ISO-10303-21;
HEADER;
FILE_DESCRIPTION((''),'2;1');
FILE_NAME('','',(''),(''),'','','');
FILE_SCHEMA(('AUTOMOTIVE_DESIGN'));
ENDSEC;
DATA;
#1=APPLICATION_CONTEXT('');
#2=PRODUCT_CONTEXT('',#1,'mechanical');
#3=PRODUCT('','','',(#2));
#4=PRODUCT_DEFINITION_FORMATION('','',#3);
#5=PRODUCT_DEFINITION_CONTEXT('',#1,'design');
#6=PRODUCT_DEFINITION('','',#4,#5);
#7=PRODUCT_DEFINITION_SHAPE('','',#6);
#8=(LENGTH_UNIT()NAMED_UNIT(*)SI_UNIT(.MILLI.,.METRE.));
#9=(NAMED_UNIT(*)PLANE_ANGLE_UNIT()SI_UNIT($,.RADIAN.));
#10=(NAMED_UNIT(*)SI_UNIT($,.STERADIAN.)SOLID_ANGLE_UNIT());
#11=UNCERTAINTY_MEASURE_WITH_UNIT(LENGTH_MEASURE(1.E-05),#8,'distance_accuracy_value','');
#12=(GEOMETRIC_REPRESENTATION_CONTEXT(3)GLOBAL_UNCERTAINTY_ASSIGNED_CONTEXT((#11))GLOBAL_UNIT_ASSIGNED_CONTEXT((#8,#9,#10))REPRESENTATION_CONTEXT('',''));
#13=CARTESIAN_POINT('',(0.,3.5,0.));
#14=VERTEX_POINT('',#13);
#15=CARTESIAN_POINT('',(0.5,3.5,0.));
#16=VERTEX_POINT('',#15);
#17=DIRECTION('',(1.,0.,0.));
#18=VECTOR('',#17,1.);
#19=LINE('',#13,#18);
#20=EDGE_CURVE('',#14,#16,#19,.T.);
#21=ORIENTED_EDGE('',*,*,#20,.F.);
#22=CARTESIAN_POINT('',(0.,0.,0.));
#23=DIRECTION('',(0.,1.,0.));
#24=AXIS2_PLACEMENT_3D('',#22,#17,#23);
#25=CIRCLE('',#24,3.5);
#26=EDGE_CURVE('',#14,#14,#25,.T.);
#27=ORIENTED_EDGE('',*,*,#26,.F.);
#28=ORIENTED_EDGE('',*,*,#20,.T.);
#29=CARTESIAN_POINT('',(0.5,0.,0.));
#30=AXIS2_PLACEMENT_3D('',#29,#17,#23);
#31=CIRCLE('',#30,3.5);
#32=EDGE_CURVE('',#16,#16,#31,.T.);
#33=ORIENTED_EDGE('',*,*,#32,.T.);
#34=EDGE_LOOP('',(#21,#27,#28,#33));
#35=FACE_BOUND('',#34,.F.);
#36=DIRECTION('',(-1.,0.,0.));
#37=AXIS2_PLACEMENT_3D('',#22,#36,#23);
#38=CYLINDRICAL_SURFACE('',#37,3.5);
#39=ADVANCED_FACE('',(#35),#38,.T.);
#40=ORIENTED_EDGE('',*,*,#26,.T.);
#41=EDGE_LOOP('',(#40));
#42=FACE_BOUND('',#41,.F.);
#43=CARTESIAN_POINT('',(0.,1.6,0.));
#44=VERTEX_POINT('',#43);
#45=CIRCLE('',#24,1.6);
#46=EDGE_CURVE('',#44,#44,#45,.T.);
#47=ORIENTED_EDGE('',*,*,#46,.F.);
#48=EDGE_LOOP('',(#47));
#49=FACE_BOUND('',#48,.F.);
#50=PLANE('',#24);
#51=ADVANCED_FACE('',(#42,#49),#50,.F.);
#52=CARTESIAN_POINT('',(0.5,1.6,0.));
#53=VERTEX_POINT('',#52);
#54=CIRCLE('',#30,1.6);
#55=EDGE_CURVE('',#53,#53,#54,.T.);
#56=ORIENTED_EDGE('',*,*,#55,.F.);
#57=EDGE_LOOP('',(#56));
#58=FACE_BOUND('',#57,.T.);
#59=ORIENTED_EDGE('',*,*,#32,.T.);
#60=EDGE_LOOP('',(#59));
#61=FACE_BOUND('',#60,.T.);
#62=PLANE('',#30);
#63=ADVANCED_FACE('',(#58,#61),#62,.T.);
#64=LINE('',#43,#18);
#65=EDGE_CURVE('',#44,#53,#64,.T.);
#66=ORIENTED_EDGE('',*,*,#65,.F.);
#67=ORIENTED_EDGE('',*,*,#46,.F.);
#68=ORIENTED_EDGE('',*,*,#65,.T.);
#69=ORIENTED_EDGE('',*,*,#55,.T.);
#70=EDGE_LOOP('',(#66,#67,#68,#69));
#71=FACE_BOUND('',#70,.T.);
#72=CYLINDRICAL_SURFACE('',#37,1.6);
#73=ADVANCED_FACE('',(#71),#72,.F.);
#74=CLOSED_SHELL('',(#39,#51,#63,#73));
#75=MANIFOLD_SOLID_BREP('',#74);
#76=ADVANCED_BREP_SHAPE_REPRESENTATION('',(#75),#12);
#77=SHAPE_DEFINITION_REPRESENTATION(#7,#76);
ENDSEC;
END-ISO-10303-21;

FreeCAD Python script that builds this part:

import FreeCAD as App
import Part
import Sketcher
from FreeCAD import Vector

doc = App.newDocument("Part")
body = doc.addObject("PartDesign::Body", "Body")

# Sketch on YZ plane
sketch1 = body.newObject("Sketcher::SketchObject", "Sketch")
sketch1.AttachmentSupport = (doc.getObject("YZ_Plane"), [""])
sketch1.MapMode = "FlatFace"
sketch1.addGeometry([
    Part.Circle(Vector(0, 0, 0), Vector(0, 0, 1), 3.5),
    Part.Circle(Vector(0, 0, 0), Vector(0, 0, 1), 1.6),
], False)
sketch1.addConstraint([
    Sketcher.Constraint("Coincident", 0, 3, -1, 1),
    Sketcher.Constraint("Coincident", 1, 3, -1, 1),
    Sketcher.Constraint("Diameter", 0, 7.0),
    Sketcher.Constraint("Diameter", 1, 3.2),
])
pad1 = body.newObject("PartDesign::Pad", "Pad")
pad1.Profile = sketch1
pad1.Length = 0.5

doc.recompute()
